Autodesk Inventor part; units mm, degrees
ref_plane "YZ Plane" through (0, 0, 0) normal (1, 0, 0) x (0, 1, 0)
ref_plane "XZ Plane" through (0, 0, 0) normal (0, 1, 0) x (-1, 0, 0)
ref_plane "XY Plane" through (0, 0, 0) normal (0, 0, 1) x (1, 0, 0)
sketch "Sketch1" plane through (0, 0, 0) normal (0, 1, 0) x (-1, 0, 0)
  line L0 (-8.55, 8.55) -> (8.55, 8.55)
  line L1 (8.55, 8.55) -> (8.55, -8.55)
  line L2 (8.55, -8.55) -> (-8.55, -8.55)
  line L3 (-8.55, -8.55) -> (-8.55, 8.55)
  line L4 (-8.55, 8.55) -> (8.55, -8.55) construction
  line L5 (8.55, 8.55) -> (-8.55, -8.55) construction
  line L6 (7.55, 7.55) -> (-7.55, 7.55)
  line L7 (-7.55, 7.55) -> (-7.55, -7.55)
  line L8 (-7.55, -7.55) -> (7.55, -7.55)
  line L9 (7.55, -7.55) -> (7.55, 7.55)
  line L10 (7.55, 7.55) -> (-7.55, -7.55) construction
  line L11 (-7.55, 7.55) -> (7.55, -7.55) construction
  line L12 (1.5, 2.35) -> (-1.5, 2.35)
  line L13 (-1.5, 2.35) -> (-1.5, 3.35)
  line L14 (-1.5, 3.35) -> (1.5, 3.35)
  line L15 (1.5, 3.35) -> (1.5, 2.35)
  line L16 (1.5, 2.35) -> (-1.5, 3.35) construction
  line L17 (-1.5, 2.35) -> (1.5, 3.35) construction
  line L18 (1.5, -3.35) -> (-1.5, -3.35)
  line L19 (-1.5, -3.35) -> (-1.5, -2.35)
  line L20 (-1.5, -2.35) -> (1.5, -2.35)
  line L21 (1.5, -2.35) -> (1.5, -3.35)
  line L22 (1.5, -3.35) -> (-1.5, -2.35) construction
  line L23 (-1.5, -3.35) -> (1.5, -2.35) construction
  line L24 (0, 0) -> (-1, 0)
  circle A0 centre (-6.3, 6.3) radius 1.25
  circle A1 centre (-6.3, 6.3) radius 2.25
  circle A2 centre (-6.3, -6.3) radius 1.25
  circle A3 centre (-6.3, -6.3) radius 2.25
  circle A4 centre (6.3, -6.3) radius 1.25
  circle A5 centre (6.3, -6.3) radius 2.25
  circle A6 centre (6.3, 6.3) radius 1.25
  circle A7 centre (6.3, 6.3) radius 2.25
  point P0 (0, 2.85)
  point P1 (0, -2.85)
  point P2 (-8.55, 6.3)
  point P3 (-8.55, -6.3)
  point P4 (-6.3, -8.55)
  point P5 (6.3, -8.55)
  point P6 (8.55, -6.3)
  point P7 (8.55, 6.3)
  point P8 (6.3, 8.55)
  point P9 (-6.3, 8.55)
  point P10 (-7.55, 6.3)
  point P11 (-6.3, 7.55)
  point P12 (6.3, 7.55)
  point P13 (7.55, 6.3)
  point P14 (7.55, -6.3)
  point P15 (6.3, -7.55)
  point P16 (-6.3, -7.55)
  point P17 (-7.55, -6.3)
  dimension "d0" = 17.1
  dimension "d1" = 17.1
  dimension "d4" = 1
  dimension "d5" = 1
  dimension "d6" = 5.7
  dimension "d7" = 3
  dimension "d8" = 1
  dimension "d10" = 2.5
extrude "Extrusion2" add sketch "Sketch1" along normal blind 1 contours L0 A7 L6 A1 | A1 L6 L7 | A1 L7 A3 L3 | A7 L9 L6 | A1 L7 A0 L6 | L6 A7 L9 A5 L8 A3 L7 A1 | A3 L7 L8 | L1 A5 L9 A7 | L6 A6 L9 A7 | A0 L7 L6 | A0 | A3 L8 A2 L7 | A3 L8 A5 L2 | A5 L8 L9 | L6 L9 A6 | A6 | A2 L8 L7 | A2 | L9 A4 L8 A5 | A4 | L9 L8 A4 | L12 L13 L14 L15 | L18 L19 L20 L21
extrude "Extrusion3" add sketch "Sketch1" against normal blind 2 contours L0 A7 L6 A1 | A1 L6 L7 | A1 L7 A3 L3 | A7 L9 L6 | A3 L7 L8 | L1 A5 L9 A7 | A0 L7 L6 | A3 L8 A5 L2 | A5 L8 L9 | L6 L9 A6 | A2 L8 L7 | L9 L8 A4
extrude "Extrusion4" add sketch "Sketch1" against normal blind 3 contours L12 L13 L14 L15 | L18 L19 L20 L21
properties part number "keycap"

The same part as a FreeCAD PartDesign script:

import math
import FreeCAD as App
import Part
import Sketcher
from FreeCAD import Vector


def add_polygon(sketch, points):
    """Adds a closed chain of lines whose ends are joined by coincident constraints."""
    first, n = sketch.GeometryCount, len(points)
    for a, b in zip(points, points[1:] + points[:1]):
        sketch.addGeometry(Part.LineSegment(App.Vector(*a, 0), App.Vector(*b, 0)), False)
    for i in range(n):
        sketch.addConstraint(Sketcher.Constraint("Coincident", first + i, 2, first + (i + 1) % n, 1))

doc = App.newDocument("Part")
body = doc.addObject("PartDesign::Body", "Body")

# Sketch on XZ plane
sketch1 = doc.addObject("Sketcher::SketchObject", "Sketch")
body.addObject(sketch1)
sketch1.AttachmentSupport = (doc.XZ_Plane, [""])
sketch1.MapMode = "FlatFace"
sketch1.addGeometry(Part.LineSegment(Vector(-6.3, 8.6, 0), Vector(6.3, 8.6, 0)), False)
sketch1.addGeometry(Part.ArcOfCircle(Part.Circle(Vector(6.3, 6.3, 0), Vector(0, 0, 1), 2.2), math.radians(0), math.radians(90)), False)
sketch1.addGeometry(Part.LineSegment(Vector(8.6, 6.3, 0), Vector(8.6, -6.3, 0)), False)
sketch1.addGeometry(Part.ArcOfCircle(Part.Circle(Vector(6.3, -6.3, 0), Vector(0, 0, 1), 2.2), math.radians(-90), math.radians(0)), False)
sketch1.addGeometry(Part.LineSegment(Vector(6.3, -8.6, 0), Vector(-6.3, -8.6, 0)), False)
sketch1.addGeometry(Part.ArcOfCircle(Part.Circle(Vector(-6.3, -6.3, 0), Vector(0, 0, 1), 2.2), math.radians(180), math.radians(270)), False)
sketch1.addGeometry(Part.LineSegment(Vector(-8.6, -6.3, 0), Vector(-8.6, 6.3, 0)), False)
sketch1.addGeometry(Part.ArcOfCircle(Part.Circle(Vector(-6.3, 6.3, 0), Vector(0, 0, 1), 2.2), math.radians(90), math.radians(180)), False)
sketch1.addConstraint(Sketcher.Constraint("Tangent", 0, 2, 1, 2))
sketch1.addConstraint(Sketcher.Constraint("Tangent", 1, 1, 2, 1))
sketch1.addConstraint(Sketcher.Constraint("Tangent", 2, 2, 3, 2))
sketch1.addConstraint(Sketcher.Constraint("Tangent", 3, 1, 4, 1))
sketch1.addConstraint(Sketcher.Constraint("Tangent", 4, 2, 5, 2))
sketch1.addConstraint(Sketcher.Constraint("Tangent", 5, 1, 6, 1))
sketch1.addConstraint(Sketcher.Constraint("Tangent", 6, 2, 7, 2))
sketch1.addConstraint(Sketcher.Constraint("Tangent", 7, 1, 0, 1))
sketch1.addConstraint(Sketcher.Constraint("Horizontal", 0))
sketch1.addConstraint(Sketcher.Constraint("Vertical", 2))
sketch1.addConstraint(Sketcher.Constraint("Horizontal", 4))
sketch1.addConstraint(Sketcher.Constraint("Vertical", 6))
sketch1.addConstraint(Sketcher.Constraint("Equal", 1, 3))
sketch1.addConstraint(Sketcher.Constraint("Equal", 3, 5))
sketch1.addConstraint(Sketcher.Constraint("Equal", 5, 7))
sketch1.addConstraint(Sketcher.Constraint("Symmetric", 1, 3, 5, 3, -1, 1))
sketch1.addConstraint(Sketcher.Constraint("Equal", 4, 2))
sketch1.addConstraint(Sketcher.Constraint("Radius", 1, 2.25))
sketch1.addConstraint(Sketcher.Constraint("DistanceX", 0, 1, 0, 2, 12.6))
pad1 = doc.addObject("PartDesign::Pad", "Pad")
body.addObject(pad1)
pad1.Profile = sketch1
pad1.Length = 1
pad1.Reversed = True

# Sketch on XZ plane
sketch2 = doc.addObject("Sketcher::SketchObject", "Sketch001")
body.addObject(sketch2)
sketch2.AttachmentSupport = (doc.XZ_Plane, [""])
sketch2.MapMode = "FlatFace"
sketch2.addGeometry(Part.LineSegment(Vector(-6.3, 8.6, 0), Vector(6.3, 8.6, 0)), False)
sketch2.addGeometry(Part.ArcOfCircle(Part.Circle(Vector(6.3, 6.3, 0), Vector(0, 0, 1), 2.2), math.radians(0), math.radians(90)), False)
sketch2.addGeometry(Part.LineSegment(Vector(8.6, 6.3, 0), Vector(8.6, -6.3, 0)), False)
sketch2.addGeometry(Part.ArcOfCircle(Part.Circle(Vector(6.3, -6.3, 0), Vector(0, 0, 1), 2.2), math.radians(-90), math.radians(0)), False)
sketch2.addGeometry(Part.LineSegment(Vector(6.3, -8.6, 0), Vector(-6.3, -8.6, 0)), False)
sketch2.addGeometry(Part.ArcOfCircle(Part.Circle(Vector(-6.3, -6.3, 0), Vector(0, 0, 1), 2.2), math.radians(180), math.radians(270)), False)
sketch2.addGeometry(Part.LineSegment(Vector(-8.6, -6.3, 0), Vector(-8.6, 6.3, 0)), False)
sketch2.addGeometry(Part.ArcOfCircle(Part.Circle(Vector(-6.3, 6.3, 0), Vector(0, 0, 1), 2.2), math.radians(90), math.radians(180)), False)
sketch2.addGeometry(Part.ArcOfCircle(Part.Circle(Vector(-6.3, 6.3, 0), Vector(0, 0, 1), 1.2), math.radians(90), math.radians(180)), False)
sketch2.addGeometry(Part.LineSegment(Vector(-7.5, 6.3, 0), Vector(-7.5, -6.3, 0)), False)
sketch2.addGeometry(Part.ArcOfCircle(Part.Circle(Vector(-6.3, -6.3, 0), Vector(0, 0, 1), 1.2), math.radians(180), math.radians(270)), False)
sketch2.addGeometry(Part.LineSegment(Vector(-6.3, -7.5, 0), Vector(6.3, -7.5, 0)), False)
sketch2.addGeometry(Part.ArcOfCircle(Part.Circle(Vector(6.3, -6.3, 0), Vector(0, 0, 1), 1.2), math.radians(-90), math.radians(0)), False)
sketch2.addGeometry(Part.LineSegment(Vector(7.5, -6.3, 0), Vector(7.5, 6.3, 0)), False)
sketch2.addGeometry(Part.ArcOfCircle(Part.Circle(Vector(6.3, 6.3, 0), Vector(0, 0, 1), 1.2), math.radians(0), math.radians(90)), False)
sketch2.addGeometry(Part.LineSegment(Vector(6.3, 7.5, 0), Vector(-6.3, 7.5, 0)), False)
sketch2.addConstraint(Sketcher.Constraint("Tangent", 0, 2, 1, 2))
sketch2.addConstraint(Sketcher.Constraint("Tangent", 1, 1, 2, 1))
sketch2.addConstraint(Sketcher.Constraint("Tangent", 2, 2, 3, 2))
sketch2.addConstraint(Sketcher.Constraint("Tangent", 3, 1, 4, 1))
sketch2.addConstraint(Sketcher.Constraint("Tangent", 4, 2, 5, 2))
sketch2.addConstraint(Sketcher.Constraint("Tangent", 5, 1, 6, 1))
sketch2.addConstraint(Sketcher.Constraint("Tangent", 6, 2, 7, 2))
sketch2.addConstraint(Sketcher.Constraint("Tangent", 7, 1, 0, 1))
sketch2.addConstraint(Sketcher.Constraint("Tangent", 8, 2, 9, 1))
sketch2.addConstraint(Sketcher.Constraint("Tangent", 9, 2, 10, 1))
sketch2.addConstraint(Sketcher.Constraint("Tangent", 10, 2, 11, 1))
sketch2.addConstraint(Sketcher.Constraint("Tangent", 11, 2, 12, 1))
sketch2.addConstraint(Sketcher.Constraint("Tangent", 12, 2, 13, 1))
sketch2.addConstraint(Sketcher.Constraint("Tangent", 13, 2, 14, 1))
sketch2.addConstraint(Sketcher.Constraint("Tangent", 14, 2, 15, 1))
sketch2.addConstraint(Sketcher.Constraint("Tangent", 15, 2, 8, 1))
sketch2.addConstraint(Sketcher.Constraint("Horizontal", 0))
sketch2.addConstraint(Sketcher.Constraint("Vertical", 2))
sketch2.addConstraint(Sketcher.Constraint("Horizontal", 4))
sketch2.addConstraint(Sketcher.Constraint("Vertical", 6))
sketch2.addConstraint(Sketcher.Constraint("Vertical", 9))
sketch2.addConstraint(Sketcher.Constraint("Horizontal", 11))
sketch2.addConstraint(Sketcher.Constraint("Vertical", 13))
sketch2.addConstraint(Sketcher.Constraint("Horizontal", 15))
sketch2.addConstraint(Sketcher.Constraint("Coincident", 8, 3, 7, 3))
sketch2.addConstraint(Sketcher.Constraint("Coincident", 10, 3, 5, 3))
sketch2.addConstraint(Sketcher.Constraint("Coincident", 12, 3, 3, 3))
sketch2.addConstraint(Sketcher.Constraint("Equal", 1, 3))
sketch2.addConstraint(Sketcher.Constraint("Equal", 3, 5))
sketch2.addConstraint(Sketcher.Constraint("Equal", 5, 7))
sketch2.addConstraint(Sketcher.Constraint("Equal", 12, 14))
sketch2.addConstraint(Sketcher.Constraint("Symmetric", 1, 3, 5, 3, -1, 1))
sketch2.addConstraint(Sketcher.Constraint("Equal", 15, 2))
sketch2.addConstraint(Sketcher.Constraint("Radius", 8, 1.25))
sketch2.addConstraint(Sketcher.Constraint("DistanceX", 6, 2, 8, 2, 1.0))
sketch2.addConstraint(Sketcher.Constraint("DistanceX", 0, 1, 0, 2, 12.6))
pad2 = doc.addObject("PartDesign::Pad", "Pad001")
body.addObject(pad2)
pad2.Profile = sketch2
pad2.Length = 2

# Sketch on XZ plane
sketch3 = doc.addObject("Sketcher::SketchObject", "Sketch002")
body.addObject(sketch3)
sketch3.AttachmentSupport = (doc.XZ_Plane, [""])
sketch3.MapMode = "FlatFace"
add_polygon(sketch3, [(1.5, 2.4), (-1.5, 2.4), (-1.5, 3.4), (1.5, 3.4)])  # lines 0-3
add_polygon(sketch3, [(1.5, -3.4), (-1.5, -3.4), (-1.5, -2.4), (1.5, -2.4)])  # lines 4-7
sketch3.addConstraint(Sketcher.Constraint("Horizontal", 0))
sketch3.addConstraint(Sketcher.Constraint("Vertical", 1))
sketch3.addConstraint(Sketcher.Constraint("Horizontal", 2))
sketch3.addConstraint(Sketcher.Constraint("Vertical", 3))
sketch3.addConstraint(Sketcher.Constraint("Horizontal", 4))
sketch3.addConstraint(Sketcher.Constraint("Vertical", 5))
sketch3.addConstraint(Sketcher.Constraint("Horizontal", 6))
sketch3.addConstraint(Sketcher.Constraint("Vertical", 7))
sketch3.addConstraint(Sketcher.Constraint("Symmetric", 2, 2, 4, 2, -1, 1))
sketch3.addConstraint(Sketcher.Constraint("Symmetric", 0, 2, 6, 2, -1, 1))
sketch3.addConstraint(Sketcher.Constraint("Vertical", 1, 2, 4, 2))
sketch3.addConstraint(Sketcher.Constraint("DistanceX", 0, 2, 0, 1, 3.0))
sketch3.addConstraint(Sketcher.Constraint("DistanceY", 1, 1, 1, 2, 1.0))
sketch3.addConstraint(Sketcher.Constraint("DistanceY", 4, 2, 0, 2, 5.7))
pad3 = doc.addObject("PartDesign::Pad", "Pad002")
body.addObject(pad3)
pad3.Profile = sketch3
pad3.Length = 3

doc.recompute()
